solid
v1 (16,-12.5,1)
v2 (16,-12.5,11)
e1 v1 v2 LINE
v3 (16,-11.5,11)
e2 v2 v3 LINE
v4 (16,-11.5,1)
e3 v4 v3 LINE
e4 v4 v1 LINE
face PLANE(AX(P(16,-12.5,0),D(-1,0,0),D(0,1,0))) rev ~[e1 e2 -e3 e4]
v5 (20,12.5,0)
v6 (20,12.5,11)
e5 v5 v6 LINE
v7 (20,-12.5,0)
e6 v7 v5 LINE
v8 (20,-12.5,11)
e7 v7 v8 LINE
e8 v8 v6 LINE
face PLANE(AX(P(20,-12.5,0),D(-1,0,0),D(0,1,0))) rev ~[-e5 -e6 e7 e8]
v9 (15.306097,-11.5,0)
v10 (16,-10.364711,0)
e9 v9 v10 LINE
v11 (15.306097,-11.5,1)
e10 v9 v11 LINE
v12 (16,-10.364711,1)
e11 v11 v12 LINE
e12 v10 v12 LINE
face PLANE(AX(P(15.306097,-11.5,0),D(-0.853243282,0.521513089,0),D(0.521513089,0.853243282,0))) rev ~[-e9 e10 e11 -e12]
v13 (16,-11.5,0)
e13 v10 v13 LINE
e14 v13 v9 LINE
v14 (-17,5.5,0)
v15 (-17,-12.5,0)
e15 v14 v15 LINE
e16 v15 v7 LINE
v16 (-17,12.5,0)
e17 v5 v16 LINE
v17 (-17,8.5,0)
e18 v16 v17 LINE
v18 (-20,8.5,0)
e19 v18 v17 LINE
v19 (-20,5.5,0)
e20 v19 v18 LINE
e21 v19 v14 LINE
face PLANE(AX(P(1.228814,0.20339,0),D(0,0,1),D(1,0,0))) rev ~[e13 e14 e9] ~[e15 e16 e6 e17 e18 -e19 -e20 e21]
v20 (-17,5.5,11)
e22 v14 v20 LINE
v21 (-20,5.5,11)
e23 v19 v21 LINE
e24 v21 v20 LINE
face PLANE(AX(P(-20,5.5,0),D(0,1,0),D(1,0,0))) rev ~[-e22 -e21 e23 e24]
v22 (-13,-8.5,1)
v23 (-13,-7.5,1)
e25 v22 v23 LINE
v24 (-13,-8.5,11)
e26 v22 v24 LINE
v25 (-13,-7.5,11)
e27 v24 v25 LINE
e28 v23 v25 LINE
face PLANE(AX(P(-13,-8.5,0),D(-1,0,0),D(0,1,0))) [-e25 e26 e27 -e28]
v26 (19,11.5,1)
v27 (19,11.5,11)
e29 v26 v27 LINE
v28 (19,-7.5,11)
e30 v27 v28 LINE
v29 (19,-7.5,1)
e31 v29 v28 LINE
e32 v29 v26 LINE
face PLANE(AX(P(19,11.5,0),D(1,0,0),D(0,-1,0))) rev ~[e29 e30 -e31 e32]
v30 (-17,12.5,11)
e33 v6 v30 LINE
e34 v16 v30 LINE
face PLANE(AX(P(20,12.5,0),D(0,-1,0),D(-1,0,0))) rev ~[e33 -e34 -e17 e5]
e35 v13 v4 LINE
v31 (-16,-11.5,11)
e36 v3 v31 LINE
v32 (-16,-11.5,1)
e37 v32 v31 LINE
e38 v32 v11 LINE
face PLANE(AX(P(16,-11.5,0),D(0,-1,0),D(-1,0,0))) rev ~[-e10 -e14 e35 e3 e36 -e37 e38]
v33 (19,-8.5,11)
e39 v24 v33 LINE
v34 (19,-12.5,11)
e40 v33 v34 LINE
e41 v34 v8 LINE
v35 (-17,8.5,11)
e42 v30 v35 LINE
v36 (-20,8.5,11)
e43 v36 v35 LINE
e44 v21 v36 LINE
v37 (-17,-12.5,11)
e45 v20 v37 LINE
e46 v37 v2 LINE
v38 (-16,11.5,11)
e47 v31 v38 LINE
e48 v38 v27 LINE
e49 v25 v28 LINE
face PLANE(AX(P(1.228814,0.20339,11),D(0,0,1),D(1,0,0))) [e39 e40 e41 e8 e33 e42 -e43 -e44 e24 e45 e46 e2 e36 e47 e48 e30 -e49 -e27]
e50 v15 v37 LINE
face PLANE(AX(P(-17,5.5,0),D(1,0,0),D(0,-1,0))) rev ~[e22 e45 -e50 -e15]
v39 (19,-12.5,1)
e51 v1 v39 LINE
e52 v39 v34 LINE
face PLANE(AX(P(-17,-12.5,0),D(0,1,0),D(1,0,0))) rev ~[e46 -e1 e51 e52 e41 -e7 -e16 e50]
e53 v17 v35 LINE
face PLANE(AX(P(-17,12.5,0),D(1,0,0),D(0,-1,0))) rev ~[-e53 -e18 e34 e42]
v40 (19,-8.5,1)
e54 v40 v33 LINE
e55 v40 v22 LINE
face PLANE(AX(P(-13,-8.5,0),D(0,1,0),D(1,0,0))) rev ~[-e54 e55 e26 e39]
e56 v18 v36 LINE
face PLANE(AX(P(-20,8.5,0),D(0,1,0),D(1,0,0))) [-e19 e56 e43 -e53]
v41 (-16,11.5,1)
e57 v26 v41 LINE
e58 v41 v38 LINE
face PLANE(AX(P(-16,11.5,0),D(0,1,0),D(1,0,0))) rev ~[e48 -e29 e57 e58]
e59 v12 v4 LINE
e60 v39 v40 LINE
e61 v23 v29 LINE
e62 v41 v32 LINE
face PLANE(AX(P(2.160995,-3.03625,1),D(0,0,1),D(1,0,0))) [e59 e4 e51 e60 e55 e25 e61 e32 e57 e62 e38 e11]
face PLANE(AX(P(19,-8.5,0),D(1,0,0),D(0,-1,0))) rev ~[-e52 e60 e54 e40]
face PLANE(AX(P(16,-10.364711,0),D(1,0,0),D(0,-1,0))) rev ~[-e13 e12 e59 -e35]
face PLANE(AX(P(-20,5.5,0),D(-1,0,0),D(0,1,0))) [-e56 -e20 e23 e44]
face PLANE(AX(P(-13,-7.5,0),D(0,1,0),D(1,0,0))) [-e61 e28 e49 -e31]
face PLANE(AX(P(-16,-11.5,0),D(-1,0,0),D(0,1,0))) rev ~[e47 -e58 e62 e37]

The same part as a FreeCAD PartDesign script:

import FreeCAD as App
import Part
import Sketcher

doc = App.newDocument("Part")
params = doc.addObject("Spreadsheet::Sheet", "Params")
for row, (alias, value) in enumerate([
    ("sketch1_width", "3 mm"),
    ("sketch1_width2", "32 mm"),
    ("sketch1_width3", "35 mm"),
    ("sketch1_height", "4 mm"),
    ("sketch1_height2", "1 mm"),
    ("pad1_length", "1 mm"),
    ("sketch2_width", "33 mm"),
    ("sketch2_width2", "32 mm"),
    ("sketch2_width3", "35 mm"),
    ("sketch2_width4", "1 mm"),
    ("sketch2_width5", "3 mm"),
    ("pad2_length", "11 mm"),
], start=1):
    params.set(f"A{row}", alias)
    params.set(f"B{row}", "=" + value)
    params.setAlias(f"B{row}", alias)

body = doc.addObject("PartDesign::Body", "Body")

sketch1 = body.newObject("Sketcher::SketchObject", "Sketch")
sketch1.AttachmentSupport = (doc.getObject("XY_Plane"), [""])
sketch1.MapMode = "FlatFace"
sketch1.addGeometry([
    Part.LineSegment(App.Vector(16, -12.5, 0), App.Vector(19, -12.5, 0)),
    Part.LineSegment(App.Vector(19, -12.5, 0), App.Vector(19, -8.5, 0)),
    Part.LineSegment(App.Vector(19, -8.5, 0), App.Vector(-13, -8.5, 0)),
    Part.LineSegment(App.Vector(-13, -8.5, 0), App.Vector(-13, -7.5, 0)),
    Part.LineSegment(App.Vector(-13, -7.5, 0), App.Vector(19, -7.5, 0)),
    Part.LineSegment(App.Vector(19, -7.5, 0), App.Vector(19, 11.5, 0)),
    Part.LineSegment(App.Vector(19, 11.5, 0), App.Vector(-16, 11.5, 0)),
    Part.LineSegment(App.Vector(-16, 11.5, 0), App.Vector(-16, -11.5, 0)),
    Part.LineSegment(App.Vector(-16, -11.5, 0), App.Vector(15.3, -11.5, 0)),
    Part.LineSegment(App.Vector(15.3, -11.5, 0), App.Vector(16, -10.4, 0)),
    Part.LineSegment(App.Vector(16, -10.4, 0), App.Vector(16, -12.5, 0)),
], False)
sketch1.addConstraint([
    Sketcher.Constraint("Coincident", 0, 2, 1, 1),
    Sketcher.Constraint("Coincident", 1, 2, 2, 1),
    Sketcher.Constraint("Coincident", 2, 2, 3, 1),
    Sketcher.Constraint("Coincident", 3, 2, 4, 1),
    Sketcher.Constraint("Coincident", 4, 2, 5, 1),
    Sketcher.Constraint("Coincident", 5, 2, 6, 1),
    Sketcher.Constraint("Coincident", 6, 2, 7, 1),
    Sketcher.Constraint("Coincident", 7, 2, 8, 1),
    Sketcher.Constraint("Coincident", 8, 2, 9, 1),
    Sketcher.Constraint("Coincident", 9, 2, 10, 1),
    Sketcher.Constraint("Coincident", 10, 2, 0, 1),
    Sketcher.Constraint("Horizontal", 0),
    Sketcher.Constraint("Vertical", 1),
    Sketcher.Constraint("Horizontal", 2),
    Sketcher.Constraint("Vertical", 3),
    Sketcher.Constraint("Horizontal", 4),
    Sketcher.Constraint("Vertical", 5),
    Sketcher.Constraint("Horizontal", 6),
    Sketcher.Constraint("Vertical", 7),
    Sketcher.Constraint("Horizontal", 8),
    Sketcher.Constraint("Vertical", 10),
    Sketcher.Constraint("Vertical", 1, 2, 4, 2),
    Sketcher.Constraint("DistanceX", 0, 1, 0, 2, 3.0),
    Sketcher.Constraint("DistanceX", 2, 2, 2, 1, 32.0),
    Sketcher.Constraint("DistanceX", 6, 2, 6, 1, 35.0),
    Sketcher.Constraint("DistanceY", 1, 1, 1, 2, 4.0),
    Sketcher.Constraint("DistanceY", 3, 1, 3, 2, 1.0),
    Sketcher.Constraint("DistanceY", 5, 1, 5, 2, 19.0),
    Sketcher.Constraint("DistanceY", 7, 2, 7, 1, 23.0),
    Sketcher.Constraint("DistanceX", -1, 1, 0, 2, 19.0),
    Sketcher.Constraint("DistanceY", 0, 2, -1, 1, 12.5),
    Sketcher.Constraint("DistanceY", 10, 2, 10, 1, 2.135289),
    Sketcher.Constraint("DistanceX", 8, 1, 8, 2, 31.306097),
])
sketch1.setExpression("Constraints[22]", "Params.sketch1_width")
sketch1.setExpression("Constraints[23]", "Params.sketch1_width2")
sketch1.setExpression("Constraints[24]", "Params.sketch1_width3")
sketch1.setExpression("Constraints[25]", "Params.sketch1_height")
sketch1.setExpression("Constraints[26]", "Params.sketch1_height2")
pad1 = body.newObject("PartDesign::Pad", "Pad")
pad1.Profile = sketch1
pad1.setExpression("Length", "Params.pad1_length")

sketch2 = body.newObject("Sketcher::SketchObject", "Sketch001")
sketch2.AttachmentSupport = (doc.getObject("XY_Plane"), [""])
sketch2.MapMode = "FlatFace"
sketch2.addGeometry([
    Part.LineSegment(App.Vector(-17, -12.5, 0), App.Vector(16, -12.5, 0)),
    Part.LineSegment(App.Vector(16, -12.5, 0), App.Vector(16, -11.5, 0)),
    Part.LineSegment(App.Vector(16, -11.5, 0), App.Vector(-16, -11.5, 0)),
    Part.LineSegment(App.Vector(-16, -11.5, 0), App.Vector(-16, 11.5, 0)),
    Part.LineSegment(App.Vector(-16, 11.5, 0), App.Vector(19, 11.5, 0)),
    Part.LineSegment(App.Vector(19, 11.5, 0), App.Vector(19, -7.5, 0)),
    Part.LineSegment(App.Vector(19, -7.5, 0), App.Vector(-13, -7.5, 0)),
    Part.LineSegment(App.Vector(-13, -7.5, 0), App.Vector(-13, -8.5, 0)),
    Part.LineSegment(App.Vector(-13, -8.5, 0), App.Vector(19, -8.5, 0)),
    Part.LineSegment(App.Vector(19, -8.5, 0), App.Vector(19, -12.5, 0)),
    Part.LineSegment(App.Vector(19, -12.5, 0), App.Vector(20, -12.5, 0)),
    Part.LineSegment(App.Vector(20, -12.5, 0), App.Vector(20, 12.5, 0)),
    Part.LineSegment(App.Vector(20, 12.5, 0), App.Vector(-17, 12.5, 0)),
    Part.LineSegment(App.Vector(-17, 12.5, 0), App.Vector(-17, 8.5, 0)),
    Part.LineSegment(App.Vector(-17, 8.5, 0), App.Vector(-20, 8.5, 0)),
    Part.LineSegment(App.Vector(-20, 8.5, 0), App.Vector(-20, 5.5, 0)),
    Part.LineSegment(App.Vector(-20, 5.5, 0), App.Vector(-17, 5.5, 0)),
    Part.LineSegment(App.Vector(-17, 5.5, 0), App.Vector(-17, -12.5, 0)),
], False)
sketch2.addConstraint([
    Sketcher.Constraint("Coincident", 0, 2, 1, 1),
    Sketcher.Constraint("Coincident", 1, 2, 2, 1),
    Sketcher.Constraint("Coincident", 2, 2, 3, 1),
    Sketcher.Constraint("Coincident", 3, 2, 4, 1),
    Sketcher.Constraint("Coincident", 4, 2, 5, 1),
    Sketcher.Constraint("Coincident", 5, 2, 6, 1),
    Sketcher.Constraint("Coincident", 6, 2, 7, 1),
    Sketcher.Constraint("Coincident", 7, 2, 8, 1),
    Sketcher.Constraint("Coincident", 8, 2, 9, 1),
    Sketcher.Constraint("Coincident", 9, 2, 10, 1),
    Sketcher.Constraint("Coincident", 10, 2, 11, 1),
    Sketcher.Constraint("Coincident", 11, 2, 12, 1),
    Sketcher.Constraint("Coincident", 12, 2, 13, 1),
    Sketcher.Constraint("Coincident", 13, 2, 14, 1),
    Sketcher.Constraint("Coincident", 14, 2, 15, 1),
    Sketcher.Constraint("Coincident", 15, 2, 16, 1),
    Sketcher.Constraint("Coincident", 16, 2, 17, 1),
    Sketcher.Constraint("Coincident", 17, 2, 0, 1),
    Sketcher.Constraint("Horizontal", 0),
    Sketcher.Constraint("Vertical", 1),
    Sketcher.Constraint("Horizontal", 2),
    Sketcher.Constraint("Vertical", 3),
    Sketcher.Constraint("Horizontal", 4),
    Sketcher.Constraint("Vertical", 5),
    Sketcher.Constraint("Horizontal", 6),
    Sketcher.Constraint("Vertical", 7),
    Sketcher.Constraint("Horizontal", 8),
    Sketcher.Constraint("Vertical", 9),
    Sketcher.Constraint("Horizontal", 10),
    Sketcher.Constraint("Vertical", 11),
    Sketcher.Constraint("Horizontal", 12),
    Sketcher.Constraint("Vertical", 13),
    Sketcher.Constraint("Horizontal", 14),
    Sketcher.Constraint("Vertical", 15),
    Sketcher.Constraint("Horizontal", 16),
    Sketcher.Constraint("Vertical", 17),
    Sketcher.Constraint("Symmetric", 1, 2, 3, 2, -1, 1),
    Sketcher.Constraint("Symmetric", 12, 2, 17, 2, -1),
    Sketcher.Constraint("Horizontal", 0, 2, 9, 2),
    Sketcher.Constraint("Vertical", 5, 2, 8, 2),
    Sketcher.Constraint("Equal", 2, 6),
    Sketcher.Constraint("Equal", 10, 1),
    Sketcher.Constraint("Equal", 1, 7),
    Sketcher.Constraint("Equal", 9, 13),
    Sketcher.Constraint("Equal", 16, 15),
    Sketcher.Constraint("DistanceX", 0, 1, 0, 2, 33.0),
    Sketcher.Constraint("DistanceX", 2, 2, 2, 1, 32.0),
    Sketcher.Constraint("DistanceX", 4, 1, 4, 2, 35.0),
    Sketcher.Constraint("DistanceX", 10, 1, 10, 2, 1.0),
    Sketcher.Constraint("DistanceX", 14, 2, 14, 1, 3.0),
    Sketcher.Constraint("DistanceY", 3, 1, 3, 2, 23.0),
    Sketcher.Constraint("DistanceY", 5, 2, 5, 1, 19.0),
])
sketch2.setExpression("Constraints[45]", "Params.sketch2_width")
sketch2.setExpression("Constraints[46]", "Params.sketch2_width2")
sketch2.setExpression("Constraints[47]", "Params.sketch2_width3")
sketch2.setExpression("Constraints[48]", "Params.sketch2_width4")
sketch2.setExpression("Constraints[49]", "Params.sketch2_width5")
pad2 = body.newObject("PartDesign::Pad", "Pad001")
pad2.Profile = sketch2
pad2.setExpression("Length", "Params.pad2_length")

doc.recompute()
